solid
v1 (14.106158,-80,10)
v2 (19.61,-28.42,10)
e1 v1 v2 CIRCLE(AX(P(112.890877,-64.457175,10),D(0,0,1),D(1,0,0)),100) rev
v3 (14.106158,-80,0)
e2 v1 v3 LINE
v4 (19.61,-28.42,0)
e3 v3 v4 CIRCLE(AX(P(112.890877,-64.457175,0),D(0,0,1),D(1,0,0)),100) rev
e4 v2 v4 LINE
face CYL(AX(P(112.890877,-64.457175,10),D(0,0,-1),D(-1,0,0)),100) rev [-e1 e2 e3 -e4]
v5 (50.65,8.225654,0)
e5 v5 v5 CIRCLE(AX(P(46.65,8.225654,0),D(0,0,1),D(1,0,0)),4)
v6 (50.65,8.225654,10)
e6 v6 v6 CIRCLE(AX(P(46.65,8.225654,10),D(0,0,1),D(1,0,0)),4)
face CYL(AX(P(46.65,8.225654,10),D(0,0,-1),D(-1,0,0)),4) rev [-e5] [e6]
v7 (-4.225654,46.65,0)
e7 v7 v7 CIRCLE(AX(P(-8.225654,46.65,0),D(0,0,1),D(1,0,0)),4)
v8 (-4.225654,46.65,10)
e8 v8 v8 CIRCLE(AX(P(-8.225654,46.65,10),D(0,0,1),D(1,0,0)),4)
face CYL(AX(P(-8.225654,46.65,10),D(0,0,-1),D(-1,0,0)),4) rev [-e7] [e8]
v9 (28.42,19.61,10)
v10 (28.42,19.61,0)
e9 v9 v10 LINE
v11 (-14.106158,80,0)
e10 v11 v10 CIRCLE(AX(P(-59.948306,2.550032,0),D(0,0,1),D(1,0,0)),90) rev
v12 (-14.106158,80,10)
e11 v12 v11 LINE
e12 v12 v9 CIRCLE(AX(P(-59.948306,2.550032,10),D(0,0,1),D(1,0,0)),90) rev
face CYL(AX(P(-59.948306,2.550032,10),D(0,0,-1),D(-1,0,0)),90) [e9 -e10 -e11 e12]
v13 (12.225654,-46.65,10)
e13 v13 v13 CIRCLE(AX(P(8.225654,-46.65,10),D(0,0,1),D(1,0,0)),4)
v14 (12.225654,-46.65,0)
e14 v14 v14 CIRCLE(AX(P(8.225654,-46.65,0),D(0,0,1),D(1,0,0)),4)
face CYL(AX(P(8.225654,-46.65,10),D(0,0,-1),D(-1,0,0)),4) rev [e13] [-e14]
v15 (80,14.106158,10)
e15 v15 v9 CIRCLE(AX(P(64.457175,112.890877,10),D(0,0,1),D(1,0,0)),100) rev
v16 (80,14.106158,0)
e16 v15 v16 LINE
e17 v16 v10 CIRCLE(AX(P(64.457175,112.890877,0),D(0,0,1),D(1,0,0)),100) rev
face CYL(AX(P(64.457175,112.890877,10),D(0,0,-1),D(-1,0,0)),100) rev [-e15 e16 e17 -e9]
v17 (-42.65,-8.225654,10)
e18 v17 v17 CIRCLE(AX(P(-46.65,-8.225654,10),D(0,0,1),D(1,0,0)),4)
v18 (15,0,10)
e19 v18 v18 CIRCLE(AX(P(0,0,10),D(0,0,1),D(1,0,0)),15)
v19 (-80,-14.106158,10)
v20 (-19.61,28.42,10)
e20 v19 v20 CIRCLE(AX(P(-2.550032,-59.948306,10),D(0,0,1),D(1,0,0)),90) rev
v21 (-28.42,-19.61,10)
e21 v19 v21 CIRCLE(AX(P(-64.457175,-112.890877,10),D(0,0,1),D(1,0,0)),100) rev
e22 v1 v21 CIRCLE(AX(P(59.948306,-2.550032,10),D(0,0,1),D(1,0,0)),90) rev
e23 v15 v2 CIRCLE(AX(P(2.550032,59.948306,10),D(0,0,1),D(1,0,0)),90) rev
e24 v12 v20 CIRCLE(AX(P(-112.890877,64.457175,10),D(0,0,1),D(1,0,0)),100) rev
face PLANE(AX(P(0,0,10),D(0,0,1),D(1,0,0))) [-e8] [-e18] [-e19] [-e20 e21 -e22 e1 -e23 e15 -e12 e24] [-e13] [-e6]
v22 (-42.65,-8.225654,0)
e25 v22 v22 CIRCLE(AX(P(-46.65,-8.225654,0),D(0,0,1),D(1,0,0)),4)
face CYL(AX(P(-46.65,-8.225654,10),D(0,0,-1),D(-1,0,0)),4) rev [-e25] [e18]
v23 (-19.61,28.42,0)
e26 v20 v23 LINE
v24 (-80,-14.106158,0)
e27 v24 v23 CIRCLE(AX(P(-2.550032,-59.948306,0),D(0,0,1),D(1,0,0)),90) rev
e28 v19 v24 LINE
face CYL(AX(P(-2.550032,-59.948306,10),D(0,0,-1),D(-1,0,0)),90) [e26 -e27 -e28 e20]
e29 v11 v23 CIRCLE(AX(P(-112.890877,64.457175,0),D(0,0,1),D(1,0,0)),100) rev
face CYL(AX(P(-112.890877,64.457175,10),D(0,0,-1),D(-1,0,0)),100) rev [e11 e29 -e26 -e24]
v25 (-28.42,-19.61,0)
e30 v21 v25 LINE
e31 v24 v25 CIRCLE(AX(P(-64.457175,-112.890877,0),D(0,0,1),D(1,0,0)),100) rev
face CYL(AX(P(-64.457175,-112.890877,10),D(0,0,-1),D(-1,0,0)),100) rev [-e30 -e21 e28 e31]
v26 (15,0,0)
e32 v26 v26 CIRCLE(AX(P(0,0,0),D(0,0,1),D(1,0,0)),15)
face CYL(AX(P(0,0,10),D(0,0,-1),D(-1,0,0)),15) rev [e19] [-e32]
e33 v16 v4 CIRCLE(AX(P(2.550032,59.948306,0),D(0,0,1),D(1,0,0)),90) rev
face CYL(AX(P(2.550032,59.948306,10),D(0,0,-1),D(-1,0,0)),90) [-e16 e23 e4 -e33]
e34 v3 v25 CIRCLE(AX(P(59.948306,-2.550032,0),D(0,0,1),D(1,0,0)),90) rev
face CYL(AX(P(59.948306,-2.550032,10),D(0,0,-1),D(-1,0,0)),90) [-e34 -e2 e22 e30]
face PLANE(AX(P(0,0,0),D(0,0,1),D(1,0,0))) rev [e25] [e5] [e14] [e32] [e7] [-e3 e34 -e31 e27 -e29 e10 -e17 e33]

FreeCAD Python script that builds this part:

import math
import FreeCAD as App
import Part
import Sketcher
from FreeCAD import Vector
Q = App.Units.Quantity

doc = App.newDocument("Part")
body = doc.addObject("PartDesign::Body", "Body")

sketch1 = body.newObject("Sketcher::SketchObject", "Sketch")
sketch1.AttachmentSupport = (doc.getObject("XY_Plane"), [""])
sketch1.MapMode = "FlatFace"
sketch1.addGeometry(Part.ArcOfCircle(Part.Circle(Vector(-2.6, -59.9, 0), Vector(0, 0, 1), 90), math.radians(101), math.radians(149)), False)
sketch1.addGeometry(Part.ArcOfCircle(Part.Circle(Vector(-64.5, -112.9, 0), Vector(0, 0, 1), 100), math.radians(69), math.radians(99)), False)
sketch1.addGeometry(Part.ArcOfCircle(Part.Circle(Vector(59.9, -2.6, 0), Vector(0, 0, 1), 90), math.radians(-169), math.radians(-121)), False)
sketch1.addGeometry(Part.ArcOfCircle(Part.Circle(Vector(112.9, -64.5, 0), Vector(0, 0, 1), 100), math.radians(159), math.radians(189)), False)
sketch1.addGeometry(Part.ArcOfCircle(Part.Circle(Vector(2.6, 59.9, 0), Vector(0, 0, 1), 90), math.radians(-79), math.radians(-31)), False)
sketch1.addGeometry(Part.ArcOfCircle(Part.Circle(Vector(64.5, 112.9, 0), Vector(0, 0, 1), 100), math.radians(-111), math.radians(-81)), False)
sketch1.addGeometry(Part.ArcOfCircle(Part.Circle(Vector(-59.9, 2.6, 0), Vector(0, 0, 1), 90), math.radians(11), math.radians(59)), False)
sketch1.addGeometry(Part.ArcOfCircle(Part.Circle(Vector(-112.9, 64.5, 0), Vector(0, 0, 1), 100), math.radians(-21), math.radians(9)), False)
sketch1.addGeometry(Part.Circle(Vector(8.2, -46.6, 0), Vector(0, 0, 1), 4), False)
sketch1.addGeometry(Part.Circle(Vector(-46.6, -8.2, 0), Vector(0, 0, 1), 4), False)
sketch1.addGeometry(Part.Circle(Vector(46.6, 8.2, 0), Vector(0, 0, 1), 4), False)
sketch1.addGeometry(Part.Circle(Vector(-8.2, 46.6, 0), Vector(0, 0, 1), 4), False)
sketch1.addGeometry(Part.Circle(Vector(0, 0, 0), Vector(0, 0, 1), 15), False)
sketch1.addConstraint(Sketcher.Constraint("Coincident", 0, 2, 1, 2))
sketch1.addConstraint(Sketcher.Constraint("Coincident", 1, 1, 2, 1))
sketch1.addConstraint(Sketcher.Constraint("Coincident", 2, 2, 3, 2))
sketch1.addConstraint(Sketcher.Constraint("Coincident", 3, 1, 4, 1))
sketch1.addConstraint(Sketcher.Constraint("Coincident", 4, 2, 5, 2))
sketch1.addConstraint(Sketcher.Constraint("Coincident", 5, 1, 6, 1))
sketch1.addConstraint(Sketcher.Constraint("Coincident", 6, 2, 7, 2))
sketch1.addConstraint(Sketcher.Constraint("Coincident", 7, 1, 0, 1))
sketch1.addConstraint(Sketcher.Constraint("Coincident", 12, 3, -1, 1))
sketch1.addConstraint(Sketcher.Constraint("Equal", 0, 2))
sketch1.addConstraint(Sketcher.Constraint("Equal", 1, 3))
sketch1.addConstraint(Sketcher.Constraint("Equal", 2, 4))
sketch1.addConstraint(Sketcher.Constraint("Equal", 3, 5))
sketch1.addConstraint(Sketcher.Constraint("Equal", 4, 6))
sketch1.addConstraint(Sketcher.Constraint("Equal", 5, 7))
sketch1.addConstraint(Sketcher.Constraint("Equal", 8, 9))
sketch1.addConstraint(Sketcher.Constraint("Equal", 9, 10))
sketch1.addConstraint(Sketcher.Constraint("Equal", 10, 11))
sketch1.addConstraint(Sketcher.Constraint("Symmetric", 0, 3, 4, 3, -1, 1))
sketch1.addConstraint(Sketcher.Constraint("Symmetric", 1, 3, 5, 3, -1, 1))
sketch1.addConstraint(Sketcher.Constraint("Symmetric", 2, 3, 6, 3, -1, 1))
sketch1.addConstraint(Sketcher.Constraint("Symmetric", 3, 3, 7, 3, -1, 1))
sketch1.addConstraint(Sketcher.Constraint("Symmetric", 9, 3, 10, 3, -1, 1))
sketch1.addConstraint(Sketcher.Constraint("Symmetric", 8, 3, 11, 3, -1, 1))
sketch1.addConstraint(Sketcher.Constraint("Diameter", 8, Q("8 mm")))
sketch1.addConstraint(Sketcher.Constraint("Diameter", 12, Q("30 mm")))
sketch1.addConstraint(Sketcher.Constraint("Radius", 0, Q("90 mm")))
sketch1.addConstraint(Sketcher.Constraint("Radius", 1, Q("100 mm")))
sketch1.addConstraint(Sketcher.Constraint("DistanceX", 0, 2, -1, 1, Q("80 mm")))
sketch1.addConstraint(Sketcher.Constraint("DistanceY", 2, 2, -1, 1, Q("80 mm")))
sketch1.addConstraint(Sketcher.Constraint("DistanceX", 9, 3, 10, 3, Q("93.3 mm")))
sketch1.addConstraint(Sketcher.Constraint("DistanceY", 8, 3, -1, 1, Q("46.65 mm")))
sketch1.addConstraint(Sketcher.Constraint("DistanceX", 1, 1, -1, 1, Q("28.42 mm")))
sketch1.addConstraint(Sketcher.Constraint("DistanceY", 1, 1, -1, 1, Q("19.61 mm")))
sketch1.addConstraint(Sketcher.Constraint("DistanceX", -1, 1, 3, 1, Q("19.61 mm")))
sketch1.addConstraint(Sketcher.Constraint("DistanceY", 3, 1, -1, 1, Q("28.42 mm")))
sketch1.addConstraint(Sketcher.Constraint("DistanceY", 1, 3, 3, 3, Q("48.433702 mm")))
sketch1.addConstraint(Sketcher.Constraint("DistanceX", 5, 3, 3, 3, Q("48.433702 mm")))
sketch1.addConstraint(Sketcher.Constraint("DistanceX", 6, 3, 8, 3, Q("68.17396 mm")))
sketch1.addConstraint(Sketcher.Constraint("DistanceY", 9, 3, 4, 3, Q("68.17396 mm")))
pad1 = body.newObject("PartDesign::Pad", "Pad")
pad1.Profile = sketch1
pad1.Length = 10

doc.recompute()
